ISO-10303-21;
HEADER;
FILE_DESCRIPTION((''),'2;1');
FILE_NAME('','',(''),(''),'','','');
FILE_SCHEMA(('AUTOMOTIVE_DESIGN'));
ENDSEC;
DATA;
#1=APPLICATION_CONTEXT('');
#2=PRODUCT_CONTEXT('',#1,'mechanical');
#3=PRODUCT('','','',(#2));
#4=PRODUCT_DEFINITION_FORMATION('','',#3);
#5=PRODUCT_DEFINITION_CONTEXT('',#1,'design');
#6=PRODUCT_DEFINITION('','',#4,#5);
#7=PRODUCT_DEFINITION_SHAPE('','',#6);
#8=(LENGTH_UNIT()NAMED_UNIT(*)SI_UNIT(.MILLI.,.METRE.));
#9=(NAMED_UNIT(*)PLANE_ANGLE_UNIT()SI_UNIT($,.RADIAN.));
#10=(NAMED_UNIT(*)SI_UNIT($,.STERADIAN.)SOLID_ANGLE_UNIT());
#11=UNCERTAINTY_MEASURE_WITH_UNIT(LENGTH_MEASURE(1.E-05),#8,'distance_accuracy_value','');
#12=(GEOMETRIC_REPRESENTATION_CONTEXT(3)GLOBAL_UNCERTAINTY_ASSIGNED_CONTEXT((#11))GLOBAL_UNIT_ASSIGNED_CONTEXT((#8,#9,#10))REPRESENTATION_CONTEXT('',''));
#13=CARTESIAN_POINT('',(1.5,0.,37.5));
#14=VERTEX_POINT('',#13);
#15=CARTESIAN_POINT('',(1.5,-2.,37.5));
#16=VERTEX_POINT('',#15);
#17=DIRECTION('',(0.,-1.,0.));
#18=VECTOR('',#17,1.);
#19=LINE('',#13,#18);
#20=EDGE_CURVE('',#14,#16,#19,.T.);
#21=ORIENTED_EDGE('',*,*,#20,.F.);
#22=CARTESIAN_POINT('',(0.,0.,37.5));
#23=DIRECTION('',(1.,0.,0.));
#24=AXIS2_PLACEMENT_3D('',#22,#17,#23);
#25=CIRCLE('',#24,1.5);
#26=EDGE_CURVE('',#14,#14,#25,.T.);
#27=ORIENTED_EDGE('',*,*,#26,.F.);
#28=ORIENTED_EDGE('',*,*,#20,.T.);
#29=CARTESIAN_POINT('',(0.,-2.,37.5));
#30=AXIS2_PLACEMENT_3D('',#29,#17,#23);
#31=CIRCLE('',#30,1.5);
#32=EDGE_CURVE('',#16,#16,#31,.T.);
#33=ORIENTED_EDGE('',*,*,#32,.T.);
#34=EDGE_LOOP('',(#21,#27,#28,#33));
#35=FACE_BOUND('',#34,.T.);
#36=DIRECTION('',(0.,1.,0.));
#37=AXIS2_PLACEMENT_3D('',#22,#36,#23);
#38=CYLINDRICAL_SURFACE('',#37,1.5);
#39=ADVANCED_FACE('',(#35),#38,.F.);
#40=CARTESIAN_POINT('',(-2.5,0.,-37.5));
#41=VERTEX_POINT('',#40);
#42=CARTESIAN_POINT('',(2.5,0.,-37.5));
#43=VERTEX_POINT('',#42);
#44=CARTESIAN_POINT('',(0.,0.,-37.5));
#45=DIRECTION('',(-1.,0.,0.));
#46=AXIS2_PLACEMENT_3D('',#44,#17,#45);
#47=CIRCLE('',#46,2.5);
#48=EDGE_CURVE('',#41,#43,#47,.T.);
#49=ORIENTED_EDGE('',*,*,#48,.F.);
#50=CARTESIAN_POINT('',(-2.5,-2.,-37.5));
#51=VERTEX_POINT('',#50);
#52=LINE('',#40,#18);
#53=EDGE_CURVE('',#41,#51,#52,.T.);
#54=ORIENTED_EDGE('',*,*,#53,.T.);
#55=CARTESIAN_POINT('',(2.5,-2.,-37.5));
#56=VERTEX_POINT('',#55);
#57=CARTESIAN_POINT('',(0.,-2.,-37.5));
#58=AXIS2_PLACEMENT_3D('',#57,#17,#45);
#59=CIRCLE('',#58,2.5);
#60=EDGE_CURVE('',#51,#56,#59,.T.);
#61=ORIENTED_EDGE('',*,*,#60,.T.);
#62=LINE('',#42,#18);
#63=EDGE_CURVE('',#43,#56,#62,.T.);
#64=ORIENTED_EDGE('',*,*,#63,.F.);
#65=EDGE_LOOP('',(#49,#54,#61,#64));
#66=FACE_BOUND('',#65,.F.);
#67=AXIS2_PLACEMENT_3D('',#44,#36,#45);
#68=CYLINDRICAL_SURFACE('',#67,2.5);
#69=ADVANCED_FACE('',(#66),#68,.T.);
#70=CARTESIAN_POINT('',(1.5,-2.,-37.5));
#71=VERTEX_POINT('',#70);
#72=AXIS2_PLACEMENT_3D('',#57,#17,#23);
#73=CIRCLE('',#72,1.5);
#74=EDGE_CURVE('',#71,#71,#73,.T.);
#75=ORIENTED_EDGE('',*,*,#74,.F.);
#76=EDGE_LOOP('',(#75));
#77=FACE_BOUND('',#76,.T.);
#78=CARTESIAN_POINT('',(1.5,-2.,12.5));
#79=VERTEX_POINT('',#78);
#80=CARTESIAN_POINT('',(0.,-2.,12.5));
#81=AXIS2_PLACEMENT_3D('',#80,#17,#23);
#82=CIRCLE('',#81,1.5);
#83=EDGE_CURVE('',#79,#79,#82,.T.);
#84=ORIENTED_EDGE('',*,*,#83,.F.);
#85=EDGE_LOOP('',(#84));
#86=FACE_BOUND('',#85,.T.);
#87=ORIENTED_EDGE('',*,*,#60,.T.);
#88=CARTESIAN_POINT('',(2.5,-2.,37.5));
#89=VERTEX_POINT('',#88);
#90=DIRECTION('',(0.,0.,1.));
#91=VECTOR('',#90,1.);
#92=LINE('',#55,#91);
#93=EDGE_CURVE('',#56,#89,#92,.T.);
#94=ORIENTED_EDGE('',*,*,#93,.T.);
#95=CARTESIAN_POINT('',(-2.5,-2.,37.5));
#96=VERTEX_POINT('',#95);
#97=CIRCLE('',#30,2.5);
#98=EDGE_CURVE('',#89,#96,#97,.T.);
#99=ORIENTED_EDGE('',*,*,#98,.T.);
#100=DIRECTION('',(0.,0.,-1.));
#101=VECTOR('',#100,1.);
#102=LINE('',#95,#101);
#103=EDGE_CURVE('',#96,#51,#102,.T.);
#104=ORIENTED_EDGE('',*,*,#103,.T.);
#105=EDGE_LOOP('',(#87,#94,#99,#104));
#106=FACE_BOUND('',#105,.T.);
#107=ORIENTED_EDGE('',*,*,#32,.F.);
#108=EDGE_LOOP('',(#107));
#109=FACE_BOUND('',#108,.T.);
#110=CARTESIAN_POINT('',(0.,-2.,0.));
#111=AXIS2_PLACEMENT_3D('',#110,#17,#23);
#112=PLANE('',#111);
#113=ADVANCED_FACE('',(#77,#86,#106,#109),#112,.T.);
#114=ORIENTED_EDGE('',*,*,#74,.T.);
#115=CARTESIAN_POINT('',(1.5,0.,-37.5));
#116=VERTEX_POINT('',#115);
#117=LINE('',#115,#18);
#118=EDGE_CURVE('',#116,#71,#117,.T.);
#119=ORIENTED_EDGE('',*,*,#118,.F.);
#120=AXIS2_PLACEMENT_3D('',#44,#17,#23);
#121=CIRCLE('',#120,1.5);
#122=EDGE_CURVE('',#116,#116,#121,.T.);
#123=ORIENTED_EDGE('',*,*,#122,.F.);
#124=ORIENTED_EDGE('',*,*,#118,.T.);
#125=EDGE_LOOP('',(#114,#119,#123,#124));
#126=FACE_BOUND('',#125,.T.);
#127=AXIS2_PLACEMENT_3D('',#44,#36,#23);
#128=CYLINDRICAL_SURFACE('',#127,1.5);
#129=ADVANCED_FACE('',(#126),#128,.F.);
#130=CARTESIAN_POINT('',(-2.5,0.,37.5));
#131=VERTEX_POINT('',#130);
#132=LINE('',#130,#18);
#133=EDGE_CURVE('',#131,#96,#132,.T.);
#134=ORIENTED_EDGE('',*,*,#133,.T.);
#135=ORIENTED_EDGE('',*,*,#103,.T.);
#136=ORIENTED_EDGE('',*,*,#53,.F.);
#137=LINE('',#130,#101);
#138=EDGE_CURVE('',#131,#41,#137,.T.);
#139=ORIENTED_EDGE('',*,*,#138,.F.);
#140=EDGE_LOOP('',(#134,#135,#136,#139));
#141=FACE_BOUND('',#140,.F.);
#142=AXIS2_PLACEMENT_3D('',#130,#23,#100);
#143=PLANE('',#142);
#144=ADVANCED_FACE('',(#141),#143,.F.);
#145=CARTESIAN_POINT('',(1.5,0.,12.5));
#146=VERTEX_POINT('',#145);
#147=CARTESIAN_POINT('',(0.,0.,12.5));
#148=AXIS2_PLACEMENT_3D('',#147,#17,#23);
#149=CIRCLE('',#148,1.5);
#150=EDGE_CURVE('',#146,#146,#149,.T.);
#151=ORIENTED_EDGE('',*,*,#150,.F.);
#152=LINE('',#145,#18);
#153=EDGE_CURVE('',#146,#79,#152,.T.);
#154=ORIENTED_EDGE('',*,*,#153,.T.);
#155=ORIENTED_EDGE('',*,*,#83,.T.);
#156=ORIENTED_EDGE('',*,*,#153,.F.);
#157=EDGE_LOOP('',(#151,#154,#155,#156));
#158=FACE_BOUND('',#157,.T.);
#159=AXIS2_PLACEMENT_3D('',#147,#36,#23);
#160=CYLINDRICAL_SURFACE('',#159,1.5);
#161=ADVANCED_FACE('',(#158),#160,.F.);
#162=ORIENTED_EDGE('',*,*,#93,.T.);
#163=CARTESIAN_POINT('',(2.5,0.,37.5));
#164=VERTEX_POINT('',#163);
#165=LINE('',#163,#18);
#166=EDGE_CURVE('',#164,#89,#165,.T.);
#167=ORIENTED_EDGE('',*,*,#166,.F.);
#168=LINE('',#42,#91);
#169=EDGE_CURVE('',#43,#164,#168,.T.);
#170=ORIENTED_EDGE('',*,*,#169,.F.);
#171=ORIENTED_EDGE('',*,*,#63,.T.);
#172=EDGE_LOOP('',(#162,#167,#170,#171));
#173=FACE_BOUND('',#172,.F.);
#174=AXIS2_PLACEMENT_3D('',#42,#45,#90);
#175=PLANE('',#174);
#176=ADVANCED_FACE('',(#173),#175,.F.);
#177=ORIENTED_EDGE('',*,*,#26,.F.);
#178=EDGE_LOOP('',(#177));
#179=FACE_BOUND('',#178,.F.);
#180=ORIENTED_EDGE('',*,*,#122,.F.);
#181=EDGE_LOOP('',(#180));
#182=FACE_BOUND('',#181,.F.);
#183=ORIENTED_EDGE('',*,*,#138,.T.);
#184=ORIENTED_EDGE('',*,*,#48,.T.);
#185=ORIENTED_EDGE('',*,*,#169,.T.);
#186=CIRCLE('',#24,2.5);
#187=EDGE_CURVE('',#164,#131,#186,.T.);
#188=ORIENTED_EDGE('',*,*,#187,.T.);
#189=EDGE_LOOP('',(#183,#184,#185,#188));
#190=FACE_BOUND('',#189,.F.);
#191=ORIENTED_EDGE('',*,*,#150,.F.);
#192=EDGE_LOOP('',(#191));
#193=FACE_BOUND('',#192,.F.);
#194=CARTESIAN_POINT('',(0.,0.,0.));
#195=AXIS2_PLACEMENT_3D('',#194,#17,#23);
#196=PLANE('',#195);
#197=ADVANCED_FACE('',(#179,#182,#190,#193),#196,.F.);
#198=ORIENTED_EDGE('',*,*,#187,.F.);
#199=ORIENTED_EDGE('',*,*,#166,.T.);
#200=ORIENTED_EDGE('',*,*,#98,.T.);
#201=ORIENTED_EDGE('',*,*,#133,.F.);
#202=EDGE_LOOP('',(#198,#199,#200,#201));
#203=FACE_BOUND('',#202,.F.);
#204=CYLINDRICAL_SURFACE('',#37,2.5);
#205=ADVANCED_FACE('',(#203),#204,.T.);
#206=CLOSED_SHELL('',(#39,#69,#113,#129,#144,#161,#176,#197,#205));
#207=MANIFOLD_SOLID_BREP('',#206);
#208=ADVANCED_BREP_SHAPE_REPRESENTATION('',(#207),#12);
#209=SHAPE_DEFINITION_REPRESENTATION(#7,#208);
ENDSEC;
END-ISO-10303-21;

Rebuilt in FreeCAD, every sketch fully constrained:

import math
import FreeCAD as App
import Part
import Sketcher

doc = App.newDocument("Part")
body = doc.addObject("PartDesign::Body", "Body")

# Sketch on XZ plane
sketch1 = body.newObject("Sketcher::SketchObject", "Sketch")
sketch1.AttachmentSupport = (doc.getObject("XZ_Plane"), [""])
sketch1.MapMode = "FlatFace"
sketch1.addGeometry(Part.LineSegment(App.Vector(2.5, -37.5, 0), App.Vector(2.5, 37.5, 0)), False)
sketch1.addGeometry(Part.ArcOfCircle(Part.Circle(App.Vector(0, 37.5, 0), App.Vector(0, 0, 1), 2.5), math.radians(0), math.radians(180)), False)
sketch1.addGeometry(Part.LineSegment(App.Vector(-2.5, 37.5, 0), App.Vector(-2.5, -37.5, 0)), False)
sketch1.addGeometry(Part.ArcOfCircle(Part.Circle(App.Vector(0, -37.5, 0), App.Vector(0, 0, 1), 2.5), math.radians(180), math.radians(360)), False)
sketch1.addGeometry(Part.Circle(App.Vector(0, -37.5, 0), App.Vector(0, 0, 1), 1.5), False)
sketch1.addGeometry(Part.Circle(App.Vector(0, 12.5, 0), App.Vector(0, 0, 1), 1.5), False)
sketch1.addGeometry(Part.Circle(App.Vector(0, 37.5, 0), App.Vector(0, 0, 1), 1.5), False)
sketch1.addConstraint(Sketcher.Constraint("Tangent", 0, 2, 1, 1))
sketch1.addConstraint(Sketcher.Constraint("Tangent", 1, 2, 2, 1))
sketch1.addConstraint(Sketcher.Constraint("Tangent", 2, 2, 3, 1))
sketch1.addConstraint(Sketcher.Constraint("Tangent", 3, 2, 0, 1))
sketch1.addConstraint(Sketcher.Constraint("Vertical", 0))
sketch1.addConstraint(Sketcher.Constraint("Vertical", 2))
sketch1.addConstraint(Sketcher.Constraint("Coincident", 4, 3, 3, 3))
sketch1.addConstraint(Sketcher.Constraint("Coincident", 6, 3, 1, 3))
sketch1.addConstraint(Sketcher.Constraint("Equal", 4, 5))
sketch1.addConstraint(Sketcher.Constraint("Equal", 5, 6))
sketch1.addConstraint(Sketcher.Constraint("Symmetric", 1, 3, 3, 3, -1, 1))
sketch1.addConstraint(Sketcher.Constraint("PointOnObject", 5, 3, -2))
sketch1.addConstraint(Sketcher.Constraint("Diameter", 4, 3.0))
sketch1.addConstraint(Sketcher.Constraint("Radius", 1, 2.5))
sketch1.addConstraint(Sketcher.Constraint("DistanceY", 0, 1, 0, 2, 75.0))
sketch1.addConstraint(Sketcher.Constraint("DistanceY", 5, 3, 1, 3, 25.0))
pad1 = body.newObject("PartDesign::Pad", "Pad")
pad1.Profile = sketch1
pad1.Length = 2

doc.recompute()
